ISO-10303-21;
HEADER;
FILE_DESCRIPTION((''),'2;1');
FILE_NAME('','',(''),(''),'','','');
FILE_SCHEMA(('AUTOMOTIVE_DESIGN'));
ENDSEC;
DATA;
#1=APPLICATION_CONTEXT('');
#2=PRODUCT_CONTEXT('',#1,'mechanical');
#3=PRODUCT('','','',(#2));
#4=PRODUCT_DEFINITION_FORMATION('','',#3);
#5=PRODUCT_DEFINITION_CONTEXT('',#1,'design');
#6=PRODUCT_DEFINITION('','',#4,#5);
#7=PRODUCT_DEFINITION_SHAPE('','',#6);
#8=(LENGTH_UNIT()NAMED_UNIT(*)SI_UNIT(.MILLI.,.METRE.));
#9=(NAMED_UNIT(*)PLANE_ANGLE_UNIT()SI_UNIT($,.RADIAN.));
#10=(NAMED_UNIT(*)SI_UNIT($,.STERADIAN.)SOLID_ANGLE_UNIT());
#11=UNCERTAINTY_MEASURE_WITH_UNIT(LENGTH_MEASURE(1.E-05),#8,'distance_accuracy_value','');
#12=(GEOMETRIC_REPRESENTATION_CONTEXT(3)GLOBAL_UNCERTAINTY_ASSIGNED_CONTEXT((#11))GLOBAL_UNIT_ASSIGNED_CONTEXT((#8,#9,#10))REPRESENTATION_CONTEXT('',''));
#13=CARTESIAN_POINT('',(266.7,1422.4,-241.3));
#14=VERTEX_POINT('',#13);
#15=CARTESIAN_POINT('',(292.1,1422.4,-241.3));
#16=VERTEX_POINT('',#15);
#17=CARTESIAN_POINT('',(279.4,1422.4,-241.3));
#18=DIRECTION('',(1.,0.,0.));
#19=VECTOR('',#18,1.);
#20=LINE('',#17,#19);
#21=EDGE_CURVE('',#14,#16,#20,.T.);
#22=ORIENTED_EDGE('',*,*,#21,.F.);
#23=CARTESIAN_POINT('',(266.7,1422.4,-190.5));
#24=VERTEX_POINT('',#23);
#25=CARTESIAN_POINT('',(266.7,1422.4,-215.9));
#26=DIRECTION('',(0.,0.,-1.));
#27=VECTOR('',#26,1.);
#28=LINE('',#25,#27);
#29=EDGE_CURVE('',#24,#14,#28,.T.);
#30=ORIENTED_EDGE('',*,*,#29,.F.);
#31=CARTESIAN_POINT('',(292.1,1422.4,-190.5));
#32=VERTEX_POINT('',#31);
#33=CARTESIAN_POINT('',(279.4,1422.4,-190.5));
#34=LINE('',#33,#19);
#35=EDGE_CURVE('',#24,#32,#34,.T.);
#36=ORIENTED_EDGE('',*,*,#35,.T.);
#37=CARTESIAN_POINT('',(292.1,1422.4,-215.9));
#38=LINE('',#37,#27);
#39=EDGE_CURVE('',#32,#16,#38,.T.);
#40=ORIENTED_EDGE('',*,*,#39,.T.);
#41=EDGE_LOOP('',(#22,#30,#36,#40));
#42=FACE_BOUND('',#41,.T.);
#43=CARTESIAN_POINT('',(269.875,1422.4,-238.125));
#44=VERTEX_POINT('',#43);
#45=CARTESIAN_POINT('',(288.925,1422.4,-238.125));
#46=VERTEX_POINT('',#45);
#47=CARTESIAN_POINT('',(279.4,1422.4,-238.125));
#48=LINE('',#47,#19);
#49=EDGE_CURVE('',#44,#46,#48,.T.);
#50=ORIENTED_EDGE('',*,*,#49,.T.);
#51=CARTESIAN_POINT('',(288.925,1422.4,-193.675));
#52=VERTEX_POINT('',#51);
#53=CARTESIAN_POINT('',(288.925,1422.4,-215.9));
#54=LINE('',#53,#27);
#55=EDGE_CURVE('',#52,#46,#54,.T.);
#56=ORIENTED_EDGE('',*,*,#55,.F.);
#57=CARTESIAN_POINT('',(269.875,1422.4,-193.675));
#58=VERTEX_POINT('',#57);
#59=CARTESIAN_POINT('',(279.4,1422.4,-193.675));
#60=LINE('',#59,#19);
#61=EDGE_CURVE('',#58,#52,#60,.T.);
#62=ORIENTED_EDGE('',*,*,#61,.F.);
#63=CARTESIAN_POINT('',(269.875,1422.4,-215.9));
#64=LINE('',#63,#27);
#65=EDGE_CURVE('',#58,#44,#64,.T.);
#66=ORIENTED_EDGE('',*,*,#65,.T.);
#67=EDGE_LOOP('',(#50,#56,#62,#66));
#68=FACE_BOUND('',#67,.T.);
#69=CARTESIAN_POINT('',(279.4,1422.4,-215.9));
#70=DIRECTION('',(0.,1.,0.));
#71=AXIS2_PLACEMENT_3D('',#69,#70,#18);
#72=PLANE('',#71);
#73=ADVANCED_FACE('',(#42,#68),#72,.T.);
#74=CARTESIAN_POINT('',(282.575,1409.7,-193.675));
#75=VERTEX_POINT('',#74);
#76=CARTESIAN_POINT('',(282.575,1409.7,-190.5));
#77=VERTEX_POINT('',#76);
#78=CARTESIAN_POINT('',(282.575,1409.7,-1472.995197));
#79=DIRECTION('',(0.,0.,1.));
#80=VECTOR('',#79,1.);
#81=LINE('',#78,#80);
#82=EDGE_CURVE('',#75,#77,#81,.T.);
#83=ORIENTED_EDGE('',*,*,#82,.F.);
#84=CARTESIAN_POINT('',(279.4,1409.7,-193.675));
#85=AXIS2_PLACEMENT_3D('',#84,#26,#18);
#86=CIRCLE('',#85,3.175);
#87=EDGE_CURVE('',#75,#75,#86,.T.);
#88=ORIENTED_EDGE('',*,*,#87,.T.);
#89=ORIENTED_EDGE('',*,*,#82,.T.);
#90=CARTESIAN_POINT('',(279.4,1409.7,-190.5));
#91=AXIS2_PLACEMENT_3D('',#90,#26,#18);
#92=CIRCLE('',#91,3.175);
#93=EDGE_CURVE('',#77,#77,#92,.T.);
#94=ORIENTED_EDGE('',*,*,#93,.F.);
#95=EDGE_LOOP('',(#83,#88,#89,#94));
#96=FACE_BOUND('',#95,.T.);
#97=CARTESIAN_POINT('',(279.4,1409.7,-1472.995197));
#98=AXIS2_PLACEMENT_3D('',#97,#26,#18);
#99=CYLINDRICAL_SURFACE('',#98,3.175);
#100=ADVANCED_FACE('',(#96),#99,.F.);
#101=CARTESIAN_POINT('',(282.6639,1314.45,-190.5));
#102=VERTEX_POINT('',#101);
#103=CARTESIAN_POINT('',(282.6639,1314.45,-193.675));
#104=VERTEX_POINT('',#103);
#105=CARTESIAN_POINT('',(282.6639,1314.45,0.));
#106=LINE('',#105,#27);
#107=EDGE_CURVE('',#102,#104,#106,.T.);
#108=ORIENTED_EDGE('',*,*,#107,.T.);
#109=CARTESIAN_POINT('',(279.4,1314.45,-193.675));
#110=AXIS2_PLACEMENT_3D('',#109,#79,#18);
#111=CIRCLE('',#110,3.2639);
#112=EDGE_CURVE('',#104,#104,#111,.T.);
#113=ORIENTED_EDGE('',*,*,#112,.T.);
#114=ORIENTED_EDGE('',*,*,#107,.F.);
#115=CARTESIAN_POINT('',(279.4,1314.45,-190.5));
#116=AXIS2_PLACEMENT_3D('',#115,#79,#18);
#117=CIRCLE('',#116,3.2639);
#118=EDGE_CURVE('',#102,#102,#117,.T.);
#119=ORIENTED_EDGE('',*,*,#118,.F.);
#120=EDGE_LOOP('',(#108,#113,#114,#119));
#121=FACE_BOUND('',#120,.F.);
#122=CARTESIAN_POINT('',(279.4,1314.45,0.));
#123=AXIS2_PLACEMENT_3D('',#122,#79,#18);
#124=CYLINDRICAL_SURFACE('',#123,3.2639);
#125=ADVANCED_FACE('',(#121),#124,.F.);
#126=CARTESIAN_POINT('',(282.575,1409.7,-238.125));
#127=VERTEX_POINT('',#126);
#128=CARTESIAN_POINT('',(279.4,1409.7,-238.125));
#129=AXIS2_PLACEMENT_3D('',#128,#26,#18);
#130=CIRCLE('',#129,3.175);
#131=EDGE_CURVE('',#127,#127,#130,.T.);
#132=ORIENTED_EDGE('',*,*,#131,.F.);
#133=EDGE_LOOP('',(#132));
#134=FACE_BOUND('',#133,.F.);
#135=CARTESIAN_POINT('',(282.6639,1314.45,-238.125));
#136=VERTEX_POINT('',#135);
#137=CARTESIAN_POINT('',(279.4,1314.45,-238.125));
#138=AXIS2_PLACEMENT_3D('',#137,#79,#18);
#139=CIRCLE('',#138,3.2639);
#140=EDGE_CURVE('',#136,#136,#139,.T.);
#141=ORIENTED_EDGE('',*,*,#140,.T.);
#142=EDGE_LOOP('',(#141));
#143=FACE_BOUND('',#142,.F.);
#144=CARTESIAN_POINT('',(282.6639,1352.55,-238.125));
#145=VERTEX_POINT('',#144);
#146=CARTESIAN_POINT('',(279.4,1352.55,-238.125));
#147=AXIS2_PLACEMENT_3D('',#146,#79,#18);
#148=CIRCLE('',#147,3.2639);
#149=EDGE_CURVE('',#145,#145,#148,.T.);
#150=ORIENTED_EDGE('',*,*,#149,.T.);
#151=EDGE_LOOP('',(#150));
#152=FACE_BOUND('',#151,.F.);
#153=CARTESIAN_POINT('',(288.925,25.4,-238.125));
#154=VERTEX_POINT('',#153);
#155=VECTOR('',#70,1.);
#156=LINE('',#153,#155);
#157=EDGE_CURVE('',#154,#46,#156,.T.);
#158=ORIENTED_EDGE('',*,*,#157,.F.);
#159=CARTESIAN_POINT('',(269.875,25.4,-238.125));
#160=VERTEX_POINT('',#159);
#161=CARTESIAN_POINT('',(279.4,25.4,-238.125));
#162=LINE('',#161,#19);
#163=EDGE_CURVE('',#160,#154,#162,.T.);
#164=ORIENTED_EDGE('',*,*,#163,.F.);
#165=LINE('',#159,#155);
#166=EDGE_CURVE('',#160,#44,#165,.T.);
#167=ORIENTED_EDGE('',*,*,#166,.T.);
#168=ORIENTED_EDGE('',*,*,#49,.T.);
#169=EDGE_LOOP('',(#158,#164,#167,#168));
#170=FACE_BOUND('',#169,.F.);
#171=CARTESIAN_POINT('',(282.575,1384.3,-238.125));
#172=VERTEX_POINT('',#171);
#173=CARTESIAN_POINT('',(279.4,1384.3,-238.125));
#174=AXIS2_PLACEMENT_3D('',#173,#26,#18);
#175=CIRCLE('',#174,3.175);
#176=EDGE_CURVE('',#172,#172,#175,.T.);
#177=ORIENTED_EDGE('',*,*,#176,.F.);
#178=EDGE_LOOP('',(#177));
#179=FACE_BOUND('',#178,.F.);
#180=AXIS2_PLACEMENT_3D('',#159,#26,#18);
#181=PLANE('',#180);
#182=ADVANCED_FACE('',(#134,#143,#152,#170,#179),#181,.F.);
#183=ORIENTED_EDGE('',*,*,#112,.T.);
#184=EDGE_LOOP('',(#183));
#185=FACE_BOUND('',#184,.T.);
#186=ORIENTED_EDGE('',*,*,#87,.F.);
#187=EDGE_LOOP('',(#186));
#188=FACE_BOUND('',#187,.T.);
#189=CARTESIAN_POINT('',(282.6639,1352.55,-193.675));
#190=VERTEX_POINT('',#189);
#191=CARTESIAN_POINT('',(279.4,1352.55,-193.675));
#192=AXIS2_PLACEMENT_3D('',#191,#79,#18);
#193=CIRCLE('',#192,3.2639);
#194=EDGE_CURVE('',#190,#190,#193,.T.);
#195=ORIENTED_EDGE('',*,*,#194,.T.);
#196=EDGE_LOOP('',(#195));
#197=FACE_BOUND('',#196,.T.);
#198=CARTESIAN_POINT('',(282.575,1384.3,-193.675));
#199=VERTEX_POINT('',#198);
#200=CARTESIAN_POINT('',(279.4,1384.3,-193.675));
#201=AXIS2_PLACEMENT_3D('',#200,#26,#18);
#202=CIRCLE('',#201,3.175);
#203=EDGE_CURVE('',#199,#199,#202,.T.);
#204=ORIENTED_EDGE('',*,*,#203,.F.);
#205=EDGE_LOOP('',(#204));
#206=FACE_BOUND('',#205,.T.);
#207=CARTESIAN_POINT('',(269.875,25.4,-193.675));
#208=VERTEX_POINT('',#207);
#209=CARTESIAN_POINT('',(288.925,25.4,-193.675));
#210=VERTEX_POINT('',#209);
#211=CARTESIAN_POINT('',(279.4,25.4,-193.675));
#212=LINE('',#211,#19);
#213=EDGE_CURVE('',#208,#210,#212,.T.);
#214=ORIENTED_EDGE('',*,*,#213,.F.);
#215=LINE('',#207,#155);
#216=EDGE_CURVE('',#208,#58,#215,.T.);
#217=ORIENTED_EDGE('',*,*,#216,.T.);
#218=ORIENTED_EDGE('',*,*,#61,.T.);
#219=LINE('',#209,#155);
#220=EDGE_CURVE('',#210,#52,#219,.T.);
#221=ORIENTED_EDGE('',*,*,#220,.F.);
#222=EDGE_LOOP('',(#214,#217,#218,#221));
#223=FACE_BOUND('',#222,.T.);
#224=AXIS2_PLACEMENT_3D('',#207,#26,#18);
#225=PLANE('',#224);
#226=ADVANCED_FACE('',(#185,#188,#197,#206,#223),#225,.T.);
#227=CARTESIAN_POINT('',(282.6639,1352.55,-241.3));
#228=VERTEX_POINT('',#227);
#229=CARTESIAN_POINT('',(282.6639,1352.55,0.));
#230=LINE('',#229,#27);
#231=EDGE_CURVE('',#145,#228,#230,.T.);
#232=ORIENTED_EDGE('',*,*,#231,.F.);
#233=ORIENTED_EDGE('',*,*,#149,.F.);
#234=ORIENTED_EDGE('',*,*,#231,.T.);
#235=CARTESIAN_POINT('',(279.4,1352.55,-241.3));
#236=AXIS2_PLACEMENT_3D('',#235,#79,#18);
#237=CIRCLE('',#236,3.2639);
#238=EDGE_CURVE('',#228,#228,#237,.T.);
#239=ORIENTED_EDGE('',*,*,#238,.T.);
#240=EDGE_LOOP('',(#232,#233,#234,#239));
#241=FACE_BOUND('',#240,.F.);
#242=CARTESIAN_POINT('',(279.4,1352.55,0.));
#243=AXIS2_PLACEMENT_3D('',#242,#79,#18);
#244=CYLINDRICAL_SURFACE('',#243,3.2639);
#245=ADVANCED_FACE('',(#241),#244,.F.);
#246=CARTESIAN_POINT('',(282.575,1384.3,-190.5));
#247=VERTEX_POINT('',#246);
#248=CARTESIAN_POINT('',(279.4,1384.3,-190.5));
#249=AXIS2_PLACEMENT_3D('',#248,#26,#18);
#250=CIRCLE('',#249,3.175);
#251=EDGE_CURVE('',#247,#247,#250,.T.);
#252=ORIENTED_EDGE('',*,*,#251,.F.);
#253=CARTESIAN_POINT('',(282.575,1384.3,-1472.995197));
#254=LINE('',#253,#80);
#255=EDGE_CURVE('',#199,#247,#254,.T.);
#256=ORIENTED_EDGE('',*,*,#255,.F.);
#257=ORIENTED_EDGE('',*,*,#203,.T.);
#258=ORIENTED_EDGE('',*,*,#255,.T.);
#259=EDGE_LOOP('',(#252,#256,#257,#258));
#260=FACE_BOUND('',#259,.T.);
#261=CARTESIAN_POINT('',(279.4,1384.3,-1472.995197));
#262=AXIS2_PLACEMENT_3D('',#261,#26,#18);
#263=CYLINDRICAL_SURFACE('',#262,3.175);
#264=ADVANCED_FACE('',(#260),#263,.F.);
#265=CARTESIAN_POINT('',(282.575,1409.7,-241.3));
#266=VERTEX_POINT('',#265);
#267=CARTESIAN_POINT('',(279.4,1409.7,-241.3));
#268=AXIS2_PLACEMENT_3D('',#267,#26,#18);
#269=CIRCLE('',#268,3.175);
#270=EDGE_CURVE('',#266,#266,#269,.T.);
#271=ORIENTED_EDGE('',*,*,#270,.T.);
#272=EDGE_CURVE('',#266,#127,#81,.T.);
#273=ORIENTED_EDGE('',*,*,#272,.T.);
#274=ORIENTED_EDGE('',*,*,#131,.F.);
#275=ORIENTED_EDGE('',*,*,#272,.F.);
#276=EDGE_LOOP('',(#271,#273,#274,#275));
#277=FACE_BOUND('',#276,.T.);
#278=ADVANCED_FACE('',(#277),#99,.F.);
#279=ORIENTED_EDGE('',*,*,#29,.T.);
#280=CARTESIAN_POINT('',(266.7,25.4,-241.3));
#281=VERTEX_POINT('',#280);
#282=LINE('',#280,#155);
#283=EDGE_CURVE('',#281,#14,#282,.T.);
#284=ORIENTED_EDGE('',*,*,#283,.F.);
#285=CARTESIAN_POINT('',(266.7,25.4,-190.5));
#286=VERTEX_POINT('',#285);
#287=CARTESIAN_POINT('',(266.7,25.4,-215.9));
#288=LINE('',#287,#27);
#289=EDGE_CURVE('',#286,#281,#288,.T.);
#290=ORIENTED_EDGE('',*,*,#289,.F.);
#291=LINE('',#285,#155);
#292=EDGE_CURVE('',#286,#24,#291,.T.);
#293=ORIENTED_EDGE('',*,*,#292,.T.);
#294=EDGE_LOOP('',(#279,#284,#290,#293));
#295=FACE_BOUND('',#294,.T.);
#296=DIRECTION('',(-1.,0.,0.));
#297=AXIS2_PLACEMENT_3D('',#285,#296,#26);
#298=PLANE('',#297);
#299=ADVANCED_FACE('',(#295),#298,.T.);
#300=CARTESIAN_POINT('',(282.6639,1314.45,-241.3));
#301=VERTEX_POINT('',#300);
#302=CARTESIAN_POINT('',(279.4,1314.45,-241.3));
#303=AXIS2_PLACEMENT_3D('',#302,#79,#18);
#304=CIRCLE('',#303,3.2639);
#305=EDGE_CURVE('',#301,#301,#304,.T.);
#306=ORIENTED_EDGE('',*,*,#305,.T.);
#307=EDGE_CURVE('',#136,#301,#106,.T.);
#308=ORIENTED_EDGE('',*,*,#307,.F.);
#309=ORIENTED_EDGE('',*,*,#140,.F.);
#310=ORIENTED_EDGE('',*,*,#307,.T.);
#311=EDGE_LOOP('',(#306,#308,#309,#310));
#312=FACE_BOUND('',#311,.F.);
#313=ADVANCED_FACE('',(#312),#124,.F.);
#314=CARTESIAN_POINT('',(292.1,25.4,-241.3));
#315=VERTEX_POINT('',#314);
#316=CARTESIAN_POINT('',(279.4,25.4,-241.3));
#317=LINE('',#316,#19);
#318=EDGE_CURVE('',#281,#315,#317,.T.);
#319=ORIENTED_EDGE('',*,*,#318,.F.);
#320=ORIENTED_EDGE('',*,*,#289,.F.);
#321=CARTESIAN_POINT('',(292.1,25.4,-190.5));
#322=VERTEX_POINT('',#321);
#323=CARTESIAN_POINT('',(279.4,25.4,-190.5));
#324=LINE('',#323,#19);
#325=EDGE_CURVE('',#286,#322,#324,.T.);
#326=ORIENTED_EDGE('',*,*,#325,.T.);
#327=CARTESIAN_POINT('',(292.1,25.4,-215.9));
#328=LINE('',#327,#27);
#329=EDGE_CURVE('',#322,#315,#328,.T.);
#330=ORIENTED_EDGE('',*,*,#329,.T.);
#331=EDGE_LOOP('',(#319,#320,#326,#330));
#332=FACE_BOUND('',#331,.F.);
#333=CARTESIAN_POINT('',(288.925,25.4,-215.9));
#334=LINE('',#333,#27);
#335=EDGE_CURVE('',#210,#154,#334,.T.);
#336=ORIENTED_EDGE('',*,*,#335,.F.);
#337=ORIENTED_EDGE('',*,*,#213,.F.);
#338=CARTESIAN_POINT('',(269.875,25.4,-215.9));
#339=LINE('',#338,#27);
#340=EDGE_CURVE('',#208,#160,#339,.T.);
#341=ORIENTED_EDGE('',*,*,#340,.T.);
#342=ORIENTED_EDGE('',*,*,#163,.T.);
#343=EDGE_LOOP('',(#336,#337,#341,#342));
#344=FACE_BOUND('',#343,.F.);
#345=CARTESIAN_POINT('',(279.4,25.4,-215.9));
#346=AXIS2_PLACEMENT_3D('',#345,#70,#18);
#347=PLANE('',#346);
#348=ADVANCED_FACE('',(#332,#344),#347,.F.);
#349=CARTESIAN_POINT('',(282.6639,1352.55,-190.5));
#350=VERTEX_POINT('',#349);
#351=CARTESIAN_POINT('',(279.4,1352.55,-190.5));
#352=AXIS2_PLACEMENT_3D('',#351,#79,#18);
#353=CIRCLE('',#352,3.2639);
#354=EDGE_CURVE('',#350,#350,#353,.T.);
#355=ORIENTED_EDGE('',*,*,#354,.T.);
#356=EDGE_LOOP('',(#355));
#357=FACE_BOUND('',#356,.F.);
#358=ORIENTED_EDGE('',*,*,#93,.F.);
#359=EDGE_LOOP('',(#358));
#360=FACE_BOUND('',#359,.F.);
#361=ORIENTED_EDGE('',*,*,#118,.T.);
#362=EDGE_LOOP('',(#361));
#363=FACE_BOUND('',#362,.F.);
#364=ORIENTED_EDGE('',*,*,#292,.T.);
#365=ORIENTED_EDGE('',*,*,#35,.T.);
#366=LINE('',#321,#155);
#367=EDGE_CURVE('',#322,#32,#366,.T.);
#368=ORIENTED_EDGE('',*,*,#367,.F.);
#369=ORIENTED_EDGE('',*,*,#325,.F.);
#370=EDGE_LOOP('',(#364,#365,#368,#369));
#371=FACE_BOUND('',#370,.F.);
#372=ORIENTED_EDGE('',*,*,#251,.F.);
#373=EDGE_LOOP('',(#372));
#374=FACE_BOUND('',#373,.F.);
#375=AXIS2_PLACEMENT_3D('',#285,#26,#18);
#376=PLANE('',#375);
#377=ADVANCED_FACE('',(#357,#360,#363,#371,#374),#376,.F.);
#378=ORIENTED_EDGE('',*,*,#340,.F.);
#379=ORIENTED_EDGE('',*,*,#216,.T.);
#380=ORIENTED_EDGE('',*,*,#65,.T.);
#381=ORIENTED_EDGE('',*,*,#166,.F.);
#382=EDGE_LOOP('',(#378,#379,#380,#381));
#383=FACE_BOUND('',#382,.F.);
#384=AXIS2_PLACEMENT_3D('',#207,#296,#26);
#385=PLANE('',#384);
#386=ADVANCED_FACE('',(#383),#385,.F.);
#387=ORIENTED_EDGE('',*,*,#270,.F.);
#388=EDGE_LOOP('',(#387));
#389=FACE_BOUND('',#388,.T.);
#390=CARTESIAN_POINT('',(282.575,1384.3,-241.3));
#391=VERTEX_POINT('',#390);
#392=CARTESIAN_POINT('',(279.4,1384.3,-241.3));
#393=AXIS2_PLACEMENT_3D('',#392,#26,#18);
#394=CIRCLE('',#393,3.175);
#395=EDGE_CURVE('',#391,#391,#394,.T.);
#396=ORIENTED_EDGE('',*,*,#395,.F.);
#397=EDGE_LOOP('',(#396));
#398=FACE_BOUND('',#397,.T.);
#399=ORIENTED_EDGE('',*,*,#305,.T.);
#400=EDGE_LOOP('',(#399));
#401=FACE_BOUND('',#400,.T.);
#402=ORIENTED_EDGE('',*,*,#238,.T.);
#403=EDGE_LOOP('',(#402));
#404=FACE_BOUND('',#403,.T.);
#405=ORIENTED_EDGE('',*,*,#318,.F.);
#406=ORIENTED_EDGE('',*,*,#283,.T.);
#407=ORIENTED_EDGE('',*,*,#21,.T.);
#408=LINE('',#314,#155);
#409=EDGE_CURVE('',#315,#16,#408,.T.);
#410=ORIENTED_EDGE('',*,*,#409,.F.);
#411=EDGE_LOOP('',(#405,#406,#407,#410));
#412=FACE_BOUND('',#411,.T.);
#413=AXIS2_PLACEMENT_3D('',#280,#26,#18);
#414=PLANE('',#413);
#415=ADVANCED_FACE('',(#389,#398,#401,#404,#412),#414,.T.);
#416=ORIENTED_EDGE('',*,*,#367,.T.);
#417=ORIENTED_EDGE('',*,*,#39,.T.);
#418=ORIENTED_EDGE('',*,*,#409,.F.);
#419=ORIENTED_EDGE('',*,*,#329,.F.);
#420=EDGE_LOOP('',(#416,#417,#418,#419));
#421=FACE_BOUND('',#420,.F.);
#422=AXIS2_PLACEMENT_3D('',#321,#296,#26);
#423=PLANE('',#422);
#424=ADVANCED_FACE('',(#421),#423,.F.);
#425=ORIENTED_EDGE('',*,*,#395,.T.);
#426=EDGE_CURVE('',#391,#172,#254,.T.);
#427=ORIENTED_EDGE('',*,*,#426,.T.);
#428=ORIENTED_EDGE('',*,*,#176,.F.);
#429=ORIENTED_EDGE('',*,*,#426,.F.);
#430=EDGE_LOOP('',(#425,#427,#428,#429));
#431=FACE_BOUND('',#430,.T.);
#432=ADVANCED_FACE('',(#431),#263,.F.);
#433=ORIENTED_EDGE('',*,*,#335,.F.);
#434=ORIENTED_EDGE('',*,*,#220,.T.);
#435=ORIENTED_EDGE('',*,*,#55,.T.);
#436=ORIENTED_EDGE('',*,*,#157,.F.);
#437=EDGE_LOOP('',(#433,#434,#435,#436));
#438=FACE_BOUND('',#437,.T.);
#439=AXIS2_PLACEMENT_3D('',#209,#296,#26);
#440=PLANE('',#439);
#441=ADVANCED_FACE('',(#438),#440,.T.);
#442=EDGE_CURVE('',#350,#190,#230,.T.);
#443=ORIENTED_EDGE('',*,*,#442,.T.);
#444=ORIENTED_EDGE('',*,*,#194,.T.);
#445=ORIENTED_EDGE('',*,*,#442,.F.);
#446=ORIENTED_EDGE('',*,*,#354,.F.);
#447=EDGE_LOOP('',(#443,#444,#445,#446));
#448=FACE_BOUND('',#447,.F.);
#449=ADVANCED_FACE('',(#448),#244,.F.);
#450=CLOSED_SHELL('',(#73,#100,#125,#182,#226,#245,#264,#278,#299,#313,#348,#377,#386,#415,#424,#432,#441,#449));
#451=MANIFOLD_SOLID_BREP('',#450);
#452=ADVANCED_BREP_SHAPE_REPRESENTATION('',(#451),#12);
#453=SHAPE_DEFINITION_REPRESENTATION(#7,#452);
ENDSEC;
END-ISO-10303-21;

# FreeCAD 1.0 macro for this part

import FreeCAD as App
import Part
import Sketcher

V = App.Vector
Q = App.Units.Quantity

doc = App.newDocument("Part")
params = doc.addObject("Spreadsheet::Sheet", "Params")
for row, (alias, value) in enumerate([
    ("sketch1_width", "1 in"),
    ("sketch1_height", "2 in"),
    ("sketch1_width2", "0.75 in"),
    ("sketch1_height2", "1.75 in"),
    ("pad1_length", "55 in"),
    ("sketch2_diameter", "0.257 in"),
    ("sketch3_diameter", "0.25 in"),
], start=1):
    params.set(f"A{row}", alias)
    params.set(f"B{row}", "=" + value)
    params.setAlias(f"B{row}", alias)

body = doc.addObject("PartDesign::Body", "Body")

sketch1 = doc.addObject("Sketcher::SketchObject", "Sketch")
body.addObject(sketch1)
sketch1.AttachmentSupport = (doc.XZ_Plane, [""])
sketch1.MapMode = "FlatFace"
sketch1.AttachmentOffset = App.Placement(V(0, 0, -1 * 25.4), App.Rotation())
sketch1.addGeometry(Part.LineSegment(V(267, -241, 0), V(267, -190, 0)), False)
sketch1.addGeometry(Part.LineSegment(V(267, -190, 0), V(292, -190, 0)), False)
sketch1.addGeometry(Part.LineSegment(V(292, -190, 0), V(292, -241, 0)), False)
sketch1.addGeometry(Part.LineSegment(V(292, -241, 0), V(267, -241, 0)), False)
sketch1.addGeometry(Part.LineSegment(V(289, -194, 0), V(270, -194, 0)), False)
sketch1.addGeometry(Part.LineSegment(V(270, -194, 0), V(270, -238, 0)), False)
sketch1.addGeometry(Part.LineSegment(V(270, -238, 0), V(289, -238, 0)), False)
sketch1.addGeometry(Part.LineSegment(V(289, -238, 0), V(289, -194, 0)), False)
sketch1.addConstraint(Sketcher.Constraint("Coincident", 0, 2, 1, 1))
sketch1.addConstraint(Sketcher.Constraint("Coincident", 1, 2, 2, 1))
sketch1.addConstraint(Sketcher.Constraint("Coincident", 2, 2, 3, 1))
sketch1.addConstraint(Sketcher.Constraint("Coincident", 3, 2, 0, 1))
sketch1.addConstraint(Sketcher.Constraint("Coincident", 4, 2, 5, 1))
sketch1.addConstraint(Sketcher.Constraint("Coincident", 5, 2, 6, 1))
sketch1.addConstraint(Sketcher.Constraint("Coincident", 6, 2, 7, 1))
sketch1.addConstraint(Sketcher.Constraint("Coincident", 7, 2, 4, 1))
sketch1.addConstraint(Sketcher.Constraint("Vertical", 0))
sketch1.addConstraint(Sketcher.Constraint("Horizontal", 1))
sketch1.addConstraint(Sketcher.Constraint("Vertical", 2))
sketch1.addConstraint(Sketcher.Constraint("Horizontal", 3))
sketch1.addConstraint(Sketcher.Constraint("Horizontal", 4))
sketch1.addConstraint(Sketcher.Constraint("Vertical", 5))
sketch1.addConstraint(Sketcher.Constraint("Horizontal", 6))
sketch1.addConstraint(Sketcher.Constraint("Vertical", 7))
sketch1.addConstraint(Sketcher.Constraint("DistanceX", 1, 1, 1, 2, Q("1 in")))
sketch1.addConstraint(Sketcher.Constraint("DistanceY", 0, 1, 0, 2, Q("2 in")))
sketch1.addConstraint(Sketcher.Constraint("DistanceX", 4, 2, 4, 1, Q("0.75 in")))
sketch1.addConstraint(Sketcher.Constraint("DistanceY", 5, 2, 5, 1, Q("1.75 in")))
sketch1.addConstraint(Sketcher.Constraint("DistanceX", -1, 1, 0, 2, Q("10.5 in")))
sketch1.addConstraint(Sketcher.Constraint("DistanceY", 0, 2, -1, 1, Q("7.5 in")))
sketch1.addConstraint(Sketcher.Constraint("DistanceX", -1, 1, 4, 2, Q("10.625 in")))
sketch1.addConstraint(Sketcher.Constraint("DistanceY", 4, 2, -1, 1, Q("7.625 in")))
sketch1.setExpression("Constraints[16]", "Params.sketch1_width")
sketch1.setExpression("Constraints[17]", "Params.sketch1_height")
sketch1.setExpression("Constraints[18]", "Params.sketch1_width2")
sketch1.setExpression("Constraints[19]", "Params.sketch1_height2")
pad1 = doc.addObject("PartDesign::Pad", "Pad")
body.addObject(pad1)
pad1.Profile = sketch1
pad1.setExpression("Length", "Params.pad1_length")
pad1.Reversed = True

sketch2 = doc.addObject("Sketcher::SketchObject", "Sketch001")
body.addObject(sketch2)
sketch2.AttachmentSupport = (doc.XY_Plane, [""])
sketch2.MapMode = "FlatFace"
sketch2.addGeometry(Part.Circle(V(279.4, 1314.5, 0), V(0, 0, 1), 3.3), False)
sketch2.addGeometry(Part.Circle(V(279.4, 1352.5, 0), V(0, 0, 1), 3.3), False)
sketch2.addConstraint(Sketcher.Constraint("Equal", 0, 1))
sketch2.addConstraint(Sketcher.Constraint("Vertical", 0, 3, 1, 3))
sketch2.addConstraint(Sketcher.Constraint("Diameter", 0, Q("0.257 in")))
sketch2.addConstraint(Sketcher.Constraint("DistanceX", -1, 1, 0, 3, Q("11 in")))
sketch2.addConstraint(Sketcher.Constraint("DistanceY", 0, 3, 1, 3, Q("1.5 in")))
sketch2.addConstraint(Sketcher.Constraint("DistanceY", -1, 1, 0, 3, Q("51.75 in")))
sketch2.setExpression("Constraints[2]", "Params.sketch2_diameter")
pocket1 = doc.addObject("PartDesign::Pocket", "Pocket")
body.addObject(pocket1)
pocket1.Profile = sketch2
pocket1.Type = "ThroughAll"

sketch3 = doc.addObject("Sketcher::SketchObject", "Sketch002")
body.addObject(sketch3)
sketch3.AttachmentSupport = (doc.XY_Plane, [""])
sketch3.MapMode = "FlatFace"
sketch3.addGeometry(Part.Circle(V(279.4, 1384.3, 0), V(0, 0, 1), 3.2), False)
sketch3.addGeometry(Part.Circle(V(279.4, 1409.7, 0), V(0, 0, 1), 3.2), False)
sketch3.addConstraint(Sketcher.Constraint("Equal", 0, 1))
sketch3.addConstraint(Sketcher.Constraint("Vertical", 0, 3, 1, 3))
sketch3.addConstraint(Sketcher.Constraint("Diameter", 0, Q("0.25 in")))
sketch3.addConstraint(Sketcher.Constraint("DistanceX", -1, 1, 0, 3, Q("11 in")))
sketch3.addConstraint(Sketcher.Constraint("DistanceY", 0, 3, 1, 3, Q("1 in")))
sketch3.addConstraint(Sketcher.Constraint("DistanceY", -1, 1, 0, 3, Q("54.5 in")))
sketch3.setExpression("Constraints[2]", "Params.sketch3_diameter")
pocket2 = doc.addObject("PartDesign::Pocket", "Pocket001")
body.addObject(pocket2)
pocket2.Profile = sketch3
pocket2.Type = "ThroughAll"
pocket2.Midplane = True

doc.recompute()
